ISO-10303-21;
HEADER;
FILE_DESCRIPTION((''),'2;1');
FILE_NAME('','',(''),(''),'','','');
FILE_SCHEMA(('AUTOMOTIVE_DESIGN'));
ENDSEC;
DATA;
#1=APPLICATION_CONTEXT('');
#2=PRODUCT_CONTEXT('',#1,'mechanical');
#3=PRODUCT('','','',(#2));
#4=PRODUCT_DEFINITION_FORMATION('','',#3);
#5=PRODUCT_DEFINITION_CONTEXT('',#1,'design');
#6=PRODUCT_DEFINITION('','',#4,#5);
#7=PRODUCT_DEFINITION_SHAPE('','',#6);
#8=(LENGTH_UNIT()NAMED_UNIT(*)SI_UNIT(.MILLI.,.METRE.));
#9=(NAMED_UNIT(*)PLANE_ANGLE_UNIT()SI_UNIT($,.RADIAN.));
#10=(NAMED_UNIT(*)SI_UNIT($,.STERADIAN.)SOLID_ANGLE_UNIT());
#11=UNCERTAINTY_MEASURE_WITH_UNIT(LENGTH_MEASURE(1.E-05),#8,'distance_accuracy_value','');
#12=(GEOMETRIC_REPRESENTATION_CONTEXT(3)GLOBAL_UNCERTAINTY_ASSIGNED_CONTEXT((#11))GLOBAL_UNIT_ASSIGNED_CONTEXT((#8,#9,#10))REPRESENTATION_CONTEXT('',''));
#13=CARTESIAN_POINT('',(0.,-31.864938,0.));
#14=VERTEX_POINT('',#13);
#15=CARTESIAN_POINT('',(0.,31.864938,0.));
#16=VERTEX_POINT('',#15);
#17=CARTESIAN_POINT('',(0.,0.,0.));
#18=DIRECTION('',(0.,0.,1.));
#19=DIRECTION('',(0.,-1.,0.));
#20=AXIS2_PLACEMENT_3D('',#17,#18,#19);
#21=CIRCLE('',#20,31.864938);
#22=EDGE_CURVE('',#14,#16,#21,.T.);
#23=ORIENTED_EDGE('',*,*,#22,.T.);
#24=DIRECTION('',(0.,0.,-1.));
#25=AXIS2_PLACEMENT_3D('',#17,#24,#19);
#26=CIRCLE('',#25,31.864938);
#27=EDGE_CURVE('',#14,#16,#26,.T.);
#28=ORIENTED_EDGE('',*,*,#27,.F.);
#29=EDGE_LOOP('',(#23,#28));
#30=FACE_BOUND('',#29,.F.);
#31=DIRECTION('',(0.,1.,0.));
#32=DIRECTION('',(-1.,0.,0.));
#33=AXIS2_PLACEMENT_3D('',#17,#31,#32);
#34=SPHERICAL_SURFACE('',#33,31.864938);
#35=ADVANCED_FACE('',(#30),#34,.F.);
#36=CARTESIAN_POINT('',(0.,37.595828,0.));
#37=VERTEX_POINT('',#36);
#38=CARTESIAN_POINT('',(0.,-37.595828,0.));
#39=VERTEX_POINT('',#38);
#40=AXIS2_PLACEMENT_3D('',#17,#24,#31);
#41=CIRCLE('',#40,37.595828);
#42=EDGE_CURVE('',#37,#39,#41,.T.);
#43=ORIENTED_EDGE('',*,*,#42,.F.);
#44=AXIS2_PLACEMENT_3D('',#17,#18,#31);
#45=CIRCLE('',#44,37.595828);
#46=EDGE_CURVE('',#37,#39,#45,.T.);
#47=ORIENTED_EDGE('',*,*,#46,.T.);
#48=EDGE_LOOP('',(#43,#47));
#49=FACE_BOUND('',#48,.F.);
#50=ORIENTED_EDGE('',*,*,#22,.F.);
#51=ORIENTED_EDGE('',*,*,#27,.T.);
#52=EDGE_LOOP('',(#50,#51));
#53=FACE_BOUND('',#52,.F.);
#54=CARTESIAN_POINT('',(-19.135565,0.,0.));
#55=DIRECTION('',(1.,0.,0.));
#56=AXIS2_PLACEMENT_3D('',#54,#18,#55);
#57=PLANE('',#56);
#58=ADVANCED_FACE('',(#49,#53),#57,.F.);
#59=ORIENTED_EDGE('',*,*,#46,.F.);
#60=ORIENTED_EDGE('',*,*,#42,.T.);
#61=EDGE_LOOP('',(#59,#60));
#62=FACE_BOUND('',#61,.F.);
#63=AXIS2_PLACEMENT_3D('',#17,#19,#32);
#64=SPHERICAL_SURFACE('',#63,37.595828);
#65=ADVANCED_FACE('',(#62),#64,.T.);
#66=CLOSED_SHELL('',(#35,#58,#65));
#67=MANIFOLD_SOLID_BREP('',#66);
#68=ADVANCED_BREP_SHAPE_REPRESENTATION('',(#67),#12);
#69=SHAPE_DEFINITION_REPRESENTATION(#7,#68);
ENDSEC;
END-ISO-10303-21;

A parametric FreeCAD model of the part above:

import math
import FreeCAD as App
import Part
import Sketcher

doc = App.newDocument("Part")
body = doc.addObject("PartDesign::Body", "Body")

# Sketch on XY plane
sketch1 = body.newObject("Sketcher::SketchObject", "Sketch")
sketch1.AttachmentSupport = (doc.getObject("XY_Plane"), [""])
sketch1.MapMode = "FlatFace"
sketch1.addGeometry([
    Part.LineSegment(App.Vector(0, 31.864938, 0), App.Vector(0, 37.595828, 0)),
    Part.ArcOfCircle(Part.Circle(App.Vector(0, 0, 0), App.Vector(0, 0, 1), 37.595828), math.radians(90), math.radians(270)),
    Part.LineSegment(App.Vector(0, -37.595828, 0), App.Vector(0, -31.864938, 0)),
    Part.ArcOfCircle(Part.Circle(App.Vector(0, 0, 0), App.Vector(0, 0, 1), 31.864938), math.radians(90), math.radians(270)),
], False)
sketch1.addConstraint([
    Sketcher.Constraint("Coincident", 0, 2, 1, 1),
    Sketcher.Constraint("Coincident", 1, 2, 2, 1),
    Sketcher.Constraint("Coincident", 2, 2, 3, 2),
    Sketcher.Constraint("Coincident", 3, 1, 0, 1),
    Sketcher.Constraint("Vertical", 0),
    Sketcher.Constraint("Vertical", 2),
    Sketcher.Constraint("Coincident", 1, 3, -1, 1),
    Sketcher.Constraint("Coincident", 3, 3, -1, 1),
    Sketcher.Constraint("PointOnObject", 0, 2, -2),
    Sketcher.Constraint("PointOnObject", 1, 2, -2),
    Sketcher.Constraint("Radius", 1, 37.595828),
    Sketcher.Constraint("Radius", 3, 31.864938),
])
revolution = body.newObject("PartDesign::Revolution", "Revolution")
revolution.Profile = sketch1
revolution.ReferenceAxis = (sketch1, ["V_Axis"])
revolution.Angle = 180

doc.recompute()
